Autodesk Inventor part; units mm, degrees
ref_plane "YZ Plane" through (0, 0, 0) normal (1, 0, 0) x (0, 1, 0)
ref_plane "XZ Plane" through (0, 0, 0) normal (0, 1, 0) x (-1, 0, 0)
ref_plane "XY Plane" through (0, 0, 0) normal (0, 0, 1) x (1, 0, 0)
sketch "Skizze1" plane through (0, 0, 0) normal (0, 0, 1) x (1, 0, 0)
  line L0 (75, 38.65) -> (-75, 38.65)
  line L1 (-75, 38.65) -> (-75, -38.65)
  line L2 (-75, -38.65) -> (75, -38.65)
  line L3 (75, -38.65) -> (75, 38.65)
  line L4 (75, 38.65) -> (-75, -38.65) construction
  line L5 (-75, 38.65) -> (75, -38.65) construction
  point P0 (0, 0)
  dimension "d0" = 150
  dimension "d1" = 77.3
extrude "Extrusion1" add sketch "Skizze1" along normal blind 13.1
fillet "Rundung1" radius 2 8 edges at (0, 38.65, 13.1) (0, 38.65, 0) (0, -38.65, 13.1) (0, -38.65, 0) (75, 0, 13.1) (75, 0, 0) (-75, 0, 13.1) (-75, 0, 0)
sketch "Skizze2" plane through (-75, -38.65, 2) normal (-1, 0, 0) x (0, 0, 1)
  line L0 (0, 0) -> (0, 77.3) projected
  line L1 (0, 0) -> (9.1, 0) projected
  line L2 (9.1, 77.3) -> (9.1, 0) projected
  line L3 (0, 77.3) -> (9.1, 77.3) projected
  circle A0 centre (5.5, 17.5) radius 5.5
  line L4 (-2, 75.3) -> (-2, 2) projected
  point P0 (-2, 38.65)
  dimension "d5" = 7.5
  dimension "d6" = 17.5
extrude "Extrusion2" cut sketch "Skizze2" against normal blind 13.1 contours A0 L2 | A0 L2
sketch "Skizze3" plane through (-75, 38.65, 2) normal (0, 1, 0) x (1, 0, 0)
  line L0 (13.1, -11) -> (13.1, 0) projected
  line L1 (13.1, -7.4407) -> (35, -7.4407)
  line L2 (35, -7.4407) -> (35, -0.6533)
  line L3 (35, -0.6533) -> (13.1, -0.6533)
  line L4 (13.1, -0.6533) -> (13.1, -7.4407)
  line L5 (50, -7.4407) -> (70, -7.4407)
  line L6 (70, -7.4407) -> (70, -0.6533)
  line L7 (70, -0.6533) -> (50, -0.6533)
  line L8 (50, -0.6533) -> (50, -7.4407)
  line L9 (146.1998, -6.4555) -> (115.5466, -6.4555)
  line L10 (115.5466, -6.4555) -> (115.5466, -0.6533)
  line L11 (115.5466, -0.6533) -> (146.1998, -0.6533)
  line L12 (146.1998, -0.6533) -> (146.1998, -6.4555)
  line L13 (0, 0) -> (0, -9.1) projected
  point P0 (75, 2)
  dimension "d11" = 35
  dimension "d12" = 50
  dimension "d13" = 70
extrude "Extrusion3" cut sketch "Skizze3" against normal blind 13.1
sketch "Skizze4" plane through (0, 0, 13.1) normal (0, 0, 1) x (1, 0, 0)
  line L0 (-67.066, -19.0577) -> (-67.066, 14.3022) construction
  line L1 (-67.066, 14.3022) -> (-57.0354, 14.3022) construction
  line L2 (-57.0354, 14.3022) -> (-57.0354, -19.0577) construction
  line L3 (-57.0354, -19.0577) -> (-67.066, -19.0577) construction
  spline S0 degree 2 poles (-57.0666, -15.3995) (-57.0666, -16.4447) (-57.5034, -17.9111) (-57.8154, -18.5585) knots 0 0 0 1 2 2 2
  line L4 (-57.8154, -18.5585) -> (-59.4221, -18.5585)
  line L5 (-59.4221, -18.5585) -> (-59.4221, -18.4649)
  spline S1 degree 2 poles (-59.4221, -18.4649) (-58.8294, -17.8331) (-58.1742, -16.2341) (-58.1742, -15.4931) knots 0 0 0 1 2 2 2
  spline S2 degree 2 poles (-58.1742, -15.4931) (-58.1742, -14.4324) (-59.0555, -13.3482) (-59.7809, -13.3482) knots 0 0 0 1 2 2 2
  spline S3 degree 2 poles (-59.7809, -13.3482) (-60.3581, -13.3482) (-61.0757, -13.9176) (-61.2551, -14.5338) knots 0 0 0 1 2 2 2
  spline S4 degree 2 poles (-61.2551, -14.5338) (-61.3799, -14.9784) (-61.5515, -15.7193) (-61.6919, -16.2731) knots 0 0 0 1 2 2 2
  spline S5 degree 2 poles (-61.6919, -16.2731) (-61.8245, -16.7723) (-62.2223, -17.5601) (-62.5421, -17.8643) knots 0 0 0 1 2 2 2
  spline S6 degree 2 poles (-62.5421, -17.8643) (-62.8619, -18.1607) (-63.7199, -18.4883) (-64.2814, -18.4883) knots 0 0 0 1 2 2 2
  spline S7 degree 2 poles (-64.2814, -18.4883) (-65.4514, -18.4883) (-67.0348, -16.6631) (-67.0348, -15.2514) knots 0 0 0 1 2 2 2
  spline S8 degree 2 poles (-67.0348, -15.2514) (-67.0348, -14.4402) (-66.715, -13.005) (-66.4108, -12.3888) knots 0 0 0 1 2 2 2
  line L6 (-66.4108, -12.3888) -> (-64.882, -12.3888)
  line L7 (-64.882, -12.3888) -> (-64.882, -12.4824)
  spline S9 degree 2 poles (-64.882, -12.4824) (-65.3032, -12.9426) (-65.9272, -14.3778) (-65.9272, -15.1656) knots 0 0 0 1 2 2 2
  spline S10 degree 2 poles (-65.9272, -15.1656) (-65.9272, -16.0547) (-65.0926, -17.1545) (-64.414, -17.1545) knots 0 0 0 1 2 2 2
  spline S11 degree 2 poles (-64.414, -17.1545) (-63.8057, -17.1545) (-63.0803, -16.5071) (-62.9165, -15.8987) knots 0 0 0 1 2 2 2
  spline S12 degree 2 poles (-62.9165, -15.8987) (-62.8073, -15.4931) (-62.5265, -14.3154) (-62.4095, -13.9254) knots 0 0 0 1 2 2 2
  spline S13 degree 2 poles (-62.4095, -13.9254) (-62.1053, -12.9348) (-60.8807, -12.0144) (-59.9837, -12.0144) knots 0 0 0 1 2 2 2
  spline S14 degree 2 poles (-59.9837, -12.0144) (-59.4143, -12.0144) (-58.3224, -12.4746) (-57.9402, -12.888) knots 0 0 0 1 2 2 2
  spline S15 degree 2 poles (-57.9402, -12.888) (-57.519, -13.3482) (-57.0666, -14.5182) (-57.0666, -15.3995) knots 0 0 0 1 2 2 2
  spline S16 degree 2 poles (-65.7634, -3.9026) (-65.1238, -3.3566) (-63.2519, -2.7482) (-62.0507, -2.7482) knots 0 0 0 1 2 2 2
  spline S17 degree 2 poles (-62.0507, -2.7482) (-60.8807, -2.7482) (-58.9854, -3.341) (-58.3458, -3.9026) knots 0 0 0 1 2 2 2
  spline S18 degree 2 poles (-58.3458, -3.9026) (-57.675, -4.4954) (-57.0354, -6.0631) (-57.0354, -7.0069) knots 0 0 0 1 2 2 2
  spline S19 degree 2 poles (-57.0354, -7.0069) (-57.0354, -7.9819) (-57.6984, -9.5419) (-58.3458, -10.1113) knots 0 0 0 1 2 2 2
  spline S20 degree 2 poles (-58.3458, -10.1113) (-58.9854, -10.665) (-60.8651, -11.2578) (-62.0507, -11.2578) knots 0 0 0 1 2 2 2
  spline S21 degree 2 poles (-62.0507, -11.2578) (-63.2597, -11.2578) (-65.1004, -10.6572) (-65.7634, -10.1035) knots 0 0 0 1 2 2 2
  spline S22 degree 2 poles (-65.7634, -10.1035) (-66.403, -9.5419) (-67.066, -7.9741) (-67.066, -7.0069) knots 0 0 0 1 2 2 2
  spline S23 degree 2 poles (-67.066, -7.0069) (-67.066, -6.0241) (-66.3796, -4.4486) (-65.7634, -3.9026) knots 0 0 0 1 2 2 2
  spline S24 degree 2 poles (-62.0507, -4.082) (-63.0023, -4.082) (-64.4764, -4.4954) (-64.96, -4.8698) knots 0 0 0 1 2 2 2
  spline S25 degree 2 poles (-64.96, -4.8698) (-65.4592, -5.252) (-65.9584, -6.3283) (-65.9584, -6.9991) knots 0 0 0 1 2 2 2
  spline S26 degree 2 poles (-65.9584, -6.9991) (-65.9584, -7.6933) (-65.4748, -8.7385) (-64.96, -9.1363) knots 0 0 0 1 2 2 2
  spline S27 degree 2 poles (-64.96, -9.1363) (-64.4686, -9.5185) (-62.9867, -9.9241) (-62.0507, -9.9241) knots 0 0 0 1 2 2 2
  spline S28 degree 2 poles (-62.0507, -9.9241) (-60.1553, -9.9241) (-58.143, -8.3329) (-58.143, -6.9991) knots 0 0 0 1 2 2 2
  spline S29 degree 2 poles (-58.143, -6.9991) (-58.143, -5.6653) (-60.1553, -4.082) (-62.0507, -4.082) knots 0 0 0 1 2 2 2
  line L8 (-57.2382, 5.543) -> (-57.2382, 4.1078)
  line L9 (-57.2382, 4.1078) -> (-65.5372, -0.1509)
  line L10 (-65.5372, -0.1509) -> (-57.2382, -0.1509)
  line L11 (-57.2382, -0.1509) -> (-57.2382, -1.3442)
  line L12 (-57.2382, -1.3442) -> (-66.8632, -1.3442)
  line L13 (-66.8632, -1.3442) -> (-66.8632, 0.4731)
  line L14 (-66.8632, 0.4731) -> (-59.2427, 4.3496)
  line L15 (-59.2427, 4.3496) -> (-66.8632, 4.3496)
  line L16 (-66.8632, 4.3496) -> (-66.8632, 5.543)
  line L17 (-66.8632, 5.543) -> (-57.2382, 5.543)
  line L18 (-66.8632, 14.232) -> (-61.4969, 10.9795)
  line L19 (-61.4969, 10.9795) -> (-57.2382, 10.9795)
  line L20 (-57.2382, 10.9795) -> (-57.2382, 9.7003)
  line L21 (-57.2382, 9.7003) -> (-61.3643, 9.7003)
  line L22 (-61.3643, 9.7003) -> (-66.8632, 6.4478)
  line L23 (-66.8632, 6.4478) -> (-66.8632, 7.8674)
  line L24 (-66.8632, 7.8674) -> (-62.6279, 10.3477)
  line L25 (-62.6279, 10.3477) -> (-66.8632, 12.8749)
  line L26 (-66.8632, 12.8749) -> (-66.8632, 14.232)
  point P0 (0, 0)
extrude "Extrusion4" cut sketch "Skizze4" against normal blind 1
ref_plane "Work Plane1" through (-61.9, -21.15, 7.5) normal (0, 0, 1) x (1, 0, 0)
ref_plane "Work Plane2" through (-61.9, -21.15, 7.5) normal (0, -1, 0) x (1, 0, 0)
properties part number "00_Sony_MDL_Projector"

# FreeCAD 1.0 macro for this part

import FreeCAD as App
import Part
import Sketcher

V = App.Vector
Q = App.Units.Quantity


def edges_at(feature, points):
    """Names of the edges that pass closest to the given points."""
    edges = feature.Shape.Edges
    near = lambda p: min(range(len(edges)), key=lambda i: edges[i].distToShape(Part.Vertex(*p))[0])
    return sorted({f"Edge{near(p) + 1}" for p in points})

doc = App.newDocument("Part")
body = doc.addObject("PartDesign::Body", "Body")

# Sketch on XY plane
sketch1 = body.newObject("Sketcher::SketchObject", "Sketch")
sketch1.AttachmentSupport = (doc.getObject("XY_Plane"), [""])
sketch1.MapMode = "FlatFace"
sketch1.addGeometry([
    Part.LineSegment(V(75, -39, 0), V(75, 39, 0)),
    Part.LineSegment(V(75, 39, 0), V(-75, 39, 0)),
    Part.LineSegment(V(-75, 39, 0), V(-75, -39, 0)),
    Part.LineSegment(V(-75, -39, 0), V(75, -39, 0)),
], False)
sketch1.addConstraint([
    Sketcher.Constraint("Coincident", 0, 2, 1, 1),
    Sketcher.Constraint("Coincident", 1, 2, 2, 1),
    Sketcher.Constraint("Coincident", 2, 2, 3, 1),
    Sketcher.Constraint("Coincident", 3, 2, 0, 1),
    Sketcher.Constraint("Vertical", 0),
    Sketcher.Constraint("Horizontal", 1),
    Sketcher.Constraint("Vertical", 2),
    Sketcher.Constraint("Horizontal", 3),
    Sketcher.Constraint("Symmetric", 0, 2, 2, 2, -1, 1),
    Sketcher.Constraint("DistanceX", 1, 2, 1, 1, Q("150 mm")),
    Sketcher.Constraint("DistanceY", 0, 1, 0, 2, Q("77.3 mm")),
])
pad1 = body.newObject("PartDesign::Pad", "Pad")
pad1.Profile = sketch1
pad1.Length = 13.1
doc.recompute()

fillet = body.newObject("PartDesign::Fillet", "Fillet")
fillet.Base = (pad1, edges_at(pad1, [
    (0, 38.65, 13.1),
    (0, 38.65, 0),
    (0, -38.65, 13.1),
    (0, -38.65, 0),
    (75, 0, 13.1),
    (75, 0, 0),
    (-75, 0, 13.1),
    (-75, 0, 0),
]))
fillet.Radius = 2

# Sketch on YZ plane
sketch2 = body.newObject("Sketcher::SketchObject", "Sketch001")
sketch2.AttachmentSupport = (doc.getObject("YZ_Plane"), [""])
sketch2.MapMode = "FlatFace"
sketch2.AttachmentOffset = App.Placement(V(0, 0, -75), App.Rotation())
sketch2.addGeometry(Part.Circle(V(-21, 8, 0), V(0, 0, 1), 6), False)
sketch2.addConstraint([
    Sketcher.Constraint("Diameter", 0, Q("11 mm")),
    Sketcher.Constraint("DistanceY", -1, 1, 0, 3, Q("7.5 mm")),
    Sketcher.Constraint("DistanceX", 0, 3, -1, 1, Q("21.15 mm")),
])
pocket1 = body.newObject("PartDesign::Pocket", "Pocket")
pocket1.Profile = sketch2
pocket1.Length = 13.1
pocket1.Reversed = True

# Sketch on XZ plane
sketch3 = body.newObject("Sketcher::SketchObject", "Sketch002")
sketch3.AttachmentSupport = (doc.getObject("XZ_Plane"), [""])
sketch3.MapMode = "FlatFace"
sketch3.AttachmentOffset = App.Placement(V(0, 0, -38.65), App.Rotation())
sketch3.addGeometry([
    Part.LineSegment(V(-62, 3, 0), V(-62, 9, 0)),  # 0
    Part.LineSegment(V(-62, 9, 0), V(-40, 9, 0)),  # 1
    Part.LineSegment(V(-40, 9, 0), V(-40, 3, 0)),  # 2
    Part.LineSegment(V(-40, 3, 0), V(-62, 3, 0)),  # 3
    Part.LineSegment(V(-25, 3, 0), V(-25, 9, 0)),  # 4
    Part.LineSegment(V(-25, 9, 0), V(-5, 9, 0)),  # 5
    Part.LineSegment(V(-5, 9, 0), V(-5, 3, 0)),  # 6
    Part.LineSegment(V(-5, 3, 0), V(-25, 3, 0)),  # 7
    Part.LineSegment(V(41, 8, 0), V(71, 8, 0)),  # 8
    Part.LineSegment(V(71, 8, 0), V(71, 3, 0)),  # 9
    Part.LineSegment(V(71, 3, 0), V(41, 3, 0)),  # 10
    Part.LineSegment(V(41, 3, 0), V(41, 8, 0)),  # 11
], False)
sketch3.addConstraint([
    Sketcher.Constraint("Coincident", 0, 2, 1, 1),
    Sketcher.Constraint("Coincident", 1, 2, 2, 1),
    Sketcher.Constraint("Coincident", 2, 2, 3, 1),
    Sketcher.Constraint("Coincident", 3, 2, 0, 1),
    Sketcher.Constraint("Coincident", 4, 2, 5, 1),
    Sketcher.Constraint("Coincident", 5, 2, 6, 1),
    Sketcher.Constraint("Coincident", 6, 2, 7, 1),
    Sketcher.Constraint("Coincident", 7, 2, 4, 1),
    Sketcher.Constraint("Coincident", 8, 2, 9, 1),
    Sketcher.Constraint("Coincident", 9, 2, 10, 1),
    Sketcher.Constraint("Coincident", 10, 2, 11, 1),
    Sketcher.Constraint("Coincident", 11, 2, 8, 1),
    Sketcher.Constraint("Vertical", 0),
    Sketcher.Constraint("Horizontal", 1),
    Sketcher.Constraint("Vertical", 2),
    Sketcher.Constraint("Horizontal", 3),
    Sketcher.Constraint("Vertical", 4),
    Sketcher.Constraint("Horizontal", 5),
    Sketcher.Constraint("Vertical", 6),
    Sketcher.Constraint("Horizontal", 7),
    Sketcher.Constraint("Horizontal", 8),
    Sketcher.Constraint("Vertical", 9),
    Sketcher.Constraint("Horizontal", 10),
    Sketcher.Constraint("Vertical", 11),
    Sketcher.Constraint("Horizontal", 1, 2, 4, 2),
    Sketcher.Constraint("Horizontal", 3, 2, 6, 2),
    Sketcher.Constraint("Horizontal", 7, 2, 9, 2),
    Sketcher.Constraint("DistanceX", 1, 2, 5, 2, Q("35 mm")),
    Sketcher.Constraint("DistanceX", 5, 1, 5, 2, Q("20 mm")),
    Sketcher.Constraint("DistanceX", 1, 1, 1, 2, Q("21.9 mm")),
    Sketcher.Constraint("DistanceX", 1, 2, -1, 1, Q("40 mm")),
    Sketcher.Constraint("DistanceX", 8, 1, 8, 2, Q("30.6532 mm")),
    Sketcher.Constraint("DistanceY", 0, 1, 0, 2, Q("6.7874 mm")),
    Sketcher.Constraint("DistanceY", 9, 2, 9, 1, Q("5.8022 mm")),
    Sketcher.Constraint("DistanceY", -1, 1, 0, 2, Q("9.4407 mm")),
    Sketcher.Constraint("DistanceX", -1, 1, 8, 2, Q("71.1998 mm")),
])
pocket2 = body.newObject("PartDesign::Pocket", "Pocket001")
pocket2.Profile = sketch3
pocket2.Length = 13.1
pocket2.Reversed = True

# Sketch on XY plane
sketch4 = body.newObject("Sketcher::SketchObject", "Sketch003")
sketch4.AttachmentSupport = (doc.getObject("XY_Plane"), [""])
sketch4.MapMode = "FlatFace"
sketch4.AttachmentOffset = App.Placement(V(0, 0, 13.1), App.Rotation())
sketch4.addGeometry([
    Part.BSplineCurve([V(-57.0666, -15.3995, 0), V(-57.0666, -16.4447, 0), V(-57.5034, -17.9111, 0), V(-57.8154, -18.5585, 0)], [3, 1, 3], [0, 1, 2], False, 2, [1, 1, 1, 1], False),  # 0
    Part.BSplineCurve([V(-57.9402, -12.888, 0), V(-57.519, -13.3482, 0), V(-57.0666, -14.5182, 0), V(-57.0666, -15.3995, 0)], [3, 1, 3], [0, 1, 2], False, 2, [1, 1, 1, 1], False),  # 1
    Part.BSplineCurve([V(-59.9837, -12.0144, 0), V(-59.4143, -12.0144, 0), V(-58.3224, -12.4746, 0), V(-57.9402, -12.888, 0)], [3, 1, 3], [0, 1, 2], False, 2, [1, 1, 1, 1], False),  # 2
    Part.BSplineCurve([V(-62.4095, -13.9254, 0), V(-62.1053, -12.9348, 0), V(-60.8807, -12.0144, 0), V(-59.9837, -12.0144, 0)], [3, 1, 3], [0, 1, 2], False, 2, [1, 1, 1, 1], False),  # 3
    Part.BSplineCurve([V(-62.9165, -15.8987, 0), V(-62.8073, -15.4931, 0), V(-62.5265, -14.3154, 0), V(-62.4095, -13.9254, 0)], [3, 1, 3], [0, 1, 2], False, 2, [1, 1, 1, 1], False),  # 4
    Part.BSplineCurve([V(-64.414, -17.1545, 0), V(-63.8057, -17.1545, 0), V(-63.0803, -16.5071, 0), V(-62.9165, -15.8987, 0)], [3, 1, 3], [0, 1, 2], False, 2, [1, 1, 1, 1], False),  # 5
    Part.BSplineCurve([V(-65.9272, -15.1656, 0), V(-65.9272, -16.0547, 0), V(-65.0926, -17.1545, 0), V(-64.414, -17.1545, 0)], [3, 1, 3], [0, 1, 2], False, 2, [1, 1, 1, 1], False),  # 6
    Part.BSplineCurve([V(-64.882, -12.4824, 0), V(-65.3032, -12.9426, 0), V(-65.9272, -14.3778, 0), V(-65.9272, -15.1656, 0)], [3, 1, 3], [0, 1, 2], False, 2, [1, 1, 1, 1], False),  # 7
    Part.LineSegment(V(-64.882, -12.4824, 0), V(-64.882, -12.3888, 0)),  # 8
    Part.LineSegment(V(-64.882, -12.3888, 0), V(-66.4108, -12.3888, 0)),  # 9
    Part.BSplineCurve([V(-67.0348, -15.2514, 0), V(-67.0348, -14.4402, 0), V(-66.715, -13.005, 0), V(-66.4108, -12.3888, 0)], [3, 1, 3], [0, 1, 2], False, 2, [1, 1, 1, 1], False),  # 10
    Part.BSplineCurve([V(-64.2814, -18.4883, 0), V(-65.4514, -18.4883, 0), V(-67.0348, -16.6631, 0), V(-67.0348, -15.2514, 0)], [3, 1, 3], [0, 1, 2], False, 2, [1, 1, 1, 1], False),  # 11
    Part.BSplineCurve([V(-62.5421, -17.8643, 0), V(-62.8619, -18.1607, 0), V(-63.7199, -18.4883, 0), V(-64.2814, -18.4883, 0)], [3, 1, 3], [0, 1, 2], False, 2, [1, 1, 1, 1], False),  # 12
    Part.BSplineCurve([V(-61.6919, -16.2731, 0), V(-61.8245, -16.7723, 0), V(-62.2223, -17.5601, 0), V(-62.5421, -17.8643, 0)], [3, 1, 3], [0, 1, 2], False, 2, [1, 1, 1, 1], False),  # 13
    Part.BSplineCurve([V(-61.2551, -14.5338, 0), V(-61.3799, -14.9784, 0), V(-61.5515, -15.7193, 0), V(-61.6919, -16.2731, 0)], [3, 1, 3], [0, 1, 2], False, 2, [1, 1, 1, 1], False),  # 14
    Part.BSplineCurve([V(-59.7809, -13.3482, 0), V(-60.3581, -13.3482, 0), V(-61.0757, -13.9176, 0), V(-61.2551, -14.5338, 0)], [3, 1, 3], [0, 1, 2], False, 2, [1, 1, 1, 1], False),  # 15
    Part.BSplineCurve([V(-58.1742, -15.4931, 0), V(-58.1742, -14.4324, 0), V(-59.0555, -13.3482, 0), V(-59.7809, -13.3482, 0)], [3, 1, 3], [0, 1, 2], False, 2, [1, 1, 1, 1], False),  # 16
    Part.BSplineCurve([V(-59.4221, -18.4649, 0), V(-58.8294, -17.8331, 0), V(-58.1742, -16.2341, 0), V(-58.1742, -15.4931, 0)], [3, 1, 3], [0, 1, 2], False, 2, [1, 1, 1, 1], False),  # 17
    Part.LineSegment(V(-59.4221, -18.4649, 0), V(-59.4221, -18.5585, 0)),  # 18
    Part.LineSegment(V(-59.4221, -18.5585, 0), V(-57.8154, -18.5585, 0)),  # 19
    Part.BSplineCurve([V(-65.7634, -3.9026, 0), V(-65.1238, -3.3566, 0), V(-63.2519, -2.7482, 0), V(-62.0507, -2.7482, 0)], [3, 1, 3], [0, 1, 2], False, 2, [1, 1, 1, 1], False),  # 20
    Part.BSplineCurve([V(-67.066, -7.0069, 0), V(-67.066, -6.0241, 0), V(-66.3796, -4.4486, 0), V(-65.7634, -3.9026, 0)], [3, 1, 3], [0, 1, 2], False, 2, [1, 1, 1, 1], False),  # 21
    Part.BSplineCurve([V(-65.7634, -10.1035, 0), V(-66.403, -9.5419, 0), V(-67.066, -7.9741, 0), V(-67.066, -7.0069, 0)], [3, 1, 3], [0, 1, 2], False, 2, [1, 1, 1, 1], False),  # 22
    Part.BSplineCurve([V(-62.0507, -11.2578, 0), V(-63.2597, -11.2578, 0), V(-65.1004, -10.6572, 0), V(-65.7634, -10.1035, 0)], [3, 1, 3], [0, 1, 2], False, 2, [1, 1, 1, 1], False),  # 23
    Part.BSplineCurve([V(-58.3458, -10.1113, 0), V(-58.9854, -10.665, 0), V(-60.8651, -11.2578, 0), V(-62.0507, -11.2578, 0)], [3, 1, 3], [0, 1, 2], False, 2, [1, 1, 1, 1], False),  # 24
    Part.BSplineCurve([V(-57.0354, -7.0069, 0), V(-57.0354, -7.9819, 0), V(-57.6984, -9.5419, 0), V(-58.3458, -10.1113, 0)], [3, 1, 3], [0, 1, 2], False, 2, [1, 1, 1, 1], False),  # 25
    Part.BSplineCurve([V(-58.3458, -3.9026, 0), V(-57.675, -4.4954, 0), V(-57.0354, -6.0631, 0), V(-57.0354, -7.0069, 0)], [3, 1, 3], [0, 1, 2], False, 2, [1, 1, 1, 1], False),  # 26
    Part.BSplineCurve([V(-62.0507, -2.7482, 0), V(-60.8807, -2.7482, 0), V(-58.9854, -3.341, 0), V(-58.3458, -3.9026, 0)], [3, 1, 3], [0, 1, 2], False, 2, [1, 1, 1, 1], False),  # 27
    Part.BSplineCurve([V(-62.0507, -4.082, 0), V(-63.0023, -4.082, 0), V(-64.4764, -4.4954, 0), V(-64.96, -4.8698, 0)], [3, 1, 3], [0, 1, 2], False, 2, [1, 1, 1, 1], False),  # 28
    Part.BSplineCurve([V(-58.143, -6.9991, 0), V(-58.143, -5.6653, 0), V(-60.1553, -4.082, 0), V(-62.0507, -4.082, 0)], [3, 1, 3], [0, 1, 2], False, 2, [1, 1, 1, 1], False),  # 29
    Part.BSplineCurve([V(-62.0507, -9.9241, 0), V(-60.1553, -9.9241, 0), V(-58.143, -8.3329, 0), V(-58.143, -6.9991, 0)], [3, 1, 3], [0, 1, 2], False, 2, [1, 1, 1, 1], False),  # 30
    Part.BSplineCurve([V(-64.96, -9.1363, 0), V(-64.4686, -9.5185, 0), V(-62.9867, -9.9241, 0), V(-62.0507, -9.9241, 0)], [3, 1, 3], [0, 1, 2], False, 2, [1, 1, 1, 1], False),  # 31
    Part.BSplineCurve([V(-65.9584, -6.9991, 0), V(-65.9584, -7.6933, 0), V(-65.4748, -8.7385, 0), V(-64.96, -9.1363, 0)], [3, 1, 3], [0, 1, 2], False, 2, [1, 1, 1, 1], False),  # 32
    Part.BSplineCurve([V(-64.96, -4.8698, 0), V(-65.4592, -5.252, 0), V(-65.9584, -6.3283, 0), V(-65.9584, -6.9991, 0)], [3, 1, 3], [0, 1, 2], False, 2, [1, 1, 1, 1], False),  # 33
    Part.LineSegment(V(-57.2382, 4.1078, 0), V(-57.2382, 5.543, 0)),  # 34
    Part.LineSegment(V(-57.2382, 5.543, 0), V(-66.8632, 5.543, 0)),  # 35
    Part.LineSegment(V(-66.8632, 5.543, 0), V(-66.8632, 4.3496, 0)),  # 36
    Part.LineSegment(V(-66.8632, 4.3496, 0), V(-59.2427, 4.3496, 0)),  # 37
    Part.LineSegment(V(-59.2427, 4.3496, 0), V(-66.8632, 0.4731, 0)),  # 38
    Part.LineSegment(V(-66.8632, 0.4731, 0), V(-66.8632, -1.3442, 0)),  # 39
    Part.LineSegment(V(-66.8632, -1.3442, 0), V(-57.2382, -1.3442, 0)),  # 40
    Part.LineSegment(V(-57.2382, -1.3442, 0), V(-57.2382, -0.1509, 0)),  # 41
    Part.LineSegment(V(-57.2382, -0.1509, 0), V(-65.5372, -0.1509, 0)),  # 42
    Part.LineSegment(V(-65.5372, -0.1509, 0), V(-57.2382, 4.1078, 0)),  # 43
    Part.LineSegment(V(-61.4969, 10.9795, 0), V(-66.8632, 14.232, 0)),  # 44
    Part.LineSegment(V(-66.8632, 14.232, 0), V(-66.8632, 12.8749, 0)),  # 45
    Part.LineSegment(V(-66.8632, 12.8749, 0), V(-62.6279, 10.3477, 0)),  # 46
    Part.LineSegment(V(-62.6279, 10.3477, 0), V(-66.8632, 7.8674, 0)),  # 47
    Part.LineSegment(V(-66.8632, 7.8674, 0), V(-66.8632, 6.4478, 0)),  # 48
    Part.LineSegment(V(-66.8632, 6.4478, 0), V(-61.3643, 9.7003, 0)),  # 49
    Part.LineSegment(V(-61.3643, 9.7003, 0), V(-57.2382, 9.7003, 0)),  # 50
    Part.LineSegment(V(-57.2382, 9.7003, 0), V(-57.2382, 10.9795, 0)),  # 51
    Part.LineSegment(V(-57.2382, 10.9795, 0), V(-61.4969, 10.9795, 0)),  # 52
], False)
sketch4.addConstraint([
    Sketcher.Constraint("Block", 0),
    Sketcher.Constraint("Block", 1),
    Sketcher.Constraint("Block", 2),
    Sketcher.Constraint("Block", 3),
    Sketcher.Constraint("Block", 4),
    Sketcher.Constraint("Block", 5),
    Sketcher.Constraint("Block", 6),
    Sketcher.Constraint("Block", 7),
    Sketcher.Constraint("Block", 10),
    Sketcher.Constraint("Block", 11),
    Sketcher.Constraint("Block", 12),
    Sketcher.Constraint("Block", 13),
    Sketcher.Constraint("Block", 14),
    Sketcher.Constraint("Block", 15),
    Sketcher.Constraint("Block", 16),
    Sketcher.Constraint("Block", 17),
    Sketcher.Constraint("Block", 20),
    Sketcher.Constraint("Block", 21),
    Sketcher.Constraint("Block", 22),
    Sketcher.Constraint("Block", 23),
    Sketcher.Constraint("Block", 24),
    Sketcher.Constraint("Block", 25),
    Sketcher.Constraint("Block", 26),
    Sketcher.Constraint("Block", 27),
    Sketcher.Constraint("Block", 28),
    Sketcher.Constraint("Block", 29),
    Sketcher.Constraint("Block", 30),
    Sketcher.Constraint("Block", 31),
    Sketcher.Constraint("Block", 32),
    Sketcher.Constraint("Block", 33),
    Sketcher.Constraint("Coincident", 7, 1, 8, 1),
    Sketcher.Constraint("Coincident", 8, 2, 9, 1),
    Sketcher.Constraint("Coincident", 9, 2, 10, 2),
    Sketcher.Constraint("Coincident", 17, 1, 18, 1),
    Sketcher.Constraint("Coincident", 18, 2, 19, 1),
    Sketcher.Constraint("Coincident", 19, 2, 0, 2),
    Sketcher.Constraint("Coincident", 34, 2, 35, 1),
    Sketcher.Constraint("Coincident", 35, 2, 36, 1),
    Sketcher.Constraint("Coincident", 36, 2, 37, 1),
    Sketcher.Constraint("Coincident", 37, 2, 38, 1),
    Sketcher.Constraint("Coincident", 38, 2, 39, 1),
    Sketcher.Constraint("Coincident", 39, 2, 40, 1),
    Sketcher.Constraint("Coincident", 40, 2, 41, 1),
    Sketcher.Constraint("Coincident", 41, 2, 42, 1),
    Sketcher.Constraint("Coincident", 42, 2, 43, 1),
    Sketcher.Constraint("Coincident", 43, 2, 34, 1),
    Sketcher.Constraint("Coincident", 44, 2, 45, 1),
    Sketcher.Constraint("Coincident", 45, 2, 46, 1),
    Sketcher.Constraint("Coincident", 46, 2, 47, 1),
    Sketcher.Constraint("Coincident", 47, 2, 48, 1),
    Sketcher.Constraint("Coincident", 48, 2, 49, 1),
    Sketcher.Constraint("Coincident", 49, 2, 50, 1),
    Sketcher.Constraint("Coincident", 50, 2, 51, 1),
    Sketcher.Constraint("Coincident", 51, 2, 52, 1),
    Sketcher.Constraint("Coincident", 52, 2, 44, 1),
    Sketcher.Constraint("Vertical", 8),
    Sketcher.Constraint("Horizontal", 9),
    Sketcher.Constraint("Vertical", 18),
    Sketcher.Constraint("Horizontal", 19),
    Sketcher.Constraint("Vertical", 34),
    Sketcher.Constraint("Horizontal", 35),
    Sketcher.Constraint("Vertical", 36),
    Sketcher.Constraint("Horizontal", 37),
    Sketcher.Constraint("Vertical", 39),
    Sketcher.Constraint("Horizontal", 40),
    Sketcher.Constraint("Vertical", 41),
    Sketcher.Constraint("Horizontal", 42),
    Sketcher.Constraint("Vertical", 45),
    Sketcher.Constraint("Vertical", 48),
    Sketcher.Constraint("Horizontal", 50),
    Sketcher.Constraint("Vertical", 51),
    Sketcher.Constraint("Horizontal", 52),
    Sketcher.Constraint("Vertical", 36, 2, 38, 2),
    Sketcher.Constraint("Vertical", 34, 2, 40, 2),
    Sketcher.Constraint("Vertical", 39, 2, 44, 2),
    Sketcher.Constraint("Vertical", 45, 2, 47, 2),
    Sketcher.Constraint("Vertical", 43, 2, 50, 2),
    Sketcher.Constraint("Equal", 36, 41),
    Sketcher.Constraint("Angle", 44, Q("148.78 deg")),
    Sketcher.Constraint("DistanceY", 48, 2, 46, 2, Q("3.9 mm")),
    Sketcher.Constraint("DistanceX", 35, 2, 35, 1, Q("9.625 mm")),
    Sketcher.Constraint("DistanceX", 42, 2, 42, 1, Q("8.299 mm")),
    Sketcher.Constraint("DistanceX", 50, 1, 50, 2, Q("4.126 mm")),
    Sketcher.Constraint("DistanceY", 45, 2, 45, 1, Q("1.357 mm")),
    Sketcher.Constraint("DistanceY", 38, 2, 35, 2, Q("5.07 mm")),
    Sketcher.Constraint("Distance", 43, Q("9.328 mm")),
    Sketcher.Constraint("Distance", 44, Q("6.275 mm")),
    Sketcher.Constraint("Distance", 46, Q("4.932 mm")),
    Sketcher.Constraint("DistanceX", 37, 1, 37, 2, Q("7.6205 mm")),
    Sketcher.Constraint("DistanceY", 34, 1, 34, 2, Q("1.4352 mm")),
    Sketcher.Constraint("DistanceY", 36, 2, 36, 1, Q("1.1934 mm")),
    Sketcher.Constraint("DistanceY", 48, 2, 48, 1, Q("1.4196 mm")),
    Sketcher.Constraint("DistanceY", 51, 1, 51, 2, Q("1.2792 mm")),
    Sketcher.Constraint("DistanceY", -1, 1, 34, 2, Q("5.543 mm")),
    Sketcher.Constraint("DistanceY", -1, 1, 44, 2, Q("14.232 mm")),
    Sketcher.Constraint("DistanceX", 46, 2, -1, 1, Q("62.628 mm")),
    Sketcher.Constraint("DistanceX", 52, 2, -1, 1, Q("61.497 mm")),
])
pocket3 = body.newObject("PartDesign::Pocket", "Pocket002")
pocket3.Profile = sketch4
pocket3.Length = 1

doc.recompute()
